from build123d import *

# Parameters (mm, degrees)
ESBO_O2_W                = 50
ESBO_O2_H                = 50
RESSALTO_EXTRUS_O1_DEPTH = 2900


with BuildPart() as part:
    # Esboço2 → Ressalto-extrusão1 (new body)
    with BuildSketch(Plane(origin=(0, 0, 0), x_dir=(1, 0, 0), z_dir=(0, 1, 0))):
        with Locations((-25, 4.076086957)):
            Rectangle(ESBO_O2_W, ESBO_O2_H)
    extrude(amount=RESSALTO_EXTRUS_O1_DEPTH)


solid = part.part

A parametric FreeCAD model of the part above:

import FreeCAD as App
import Part
import Sketcher
from FreeCAD import Vector

doc = App.newDocument("Part")
body = doc.addObject("PartDesign::Body", "Body")

sketch1 = body.newObject("Sketcher::SketchObject", "Sketch")
sketch1.AttachmentSupport = (doc.getObject("XZ_Plane"), [""])
sketch1.MapMode = "FlatFace"
sketch1.addGeometry([
    Part.LineSegment(Vector(-50, -29, 0), Vector(-50, 21, 0)),
    Part.LineSegment(Vector(-50, 21, 0), Vector(0, 21, 0)),
    Part.LineSegment(Vector(0, 21, 0), Vector(0, -29, 0)),
    Part.LineSegment(Vector(0, -29, 0), Vector(-50, -29, 0)),
], False)
sketch1.addConstraint([
    Sketcher.Constraint("Coincident", 0, 2, 1, 1),
    Sketcher.Constraint("Coincident", 1, 2, 2, 1),
    Sketcher.Constraint("Coincident", 2, 2, 3, 1),
    Sketcher.Constraint("Coincident", 3, 2, 0, 1),
    Sketcher.Constraint("Vertical", 0),
    Sketcher.Constraint("Horizontal", 1),
    Sketcher.Constraint("Vertical", 2),
    Sketcher.Constraint("Horizontal", 3),
    Sketcher.Constraint("PointOnObject", 1, 2, -2),
    Sketcher.Constraint("Equal", 3, 0),
    Sketcher.Constraint("DistanceX", 1, 1, 1, 2, 50.0),
    Sketcher.Constraint("DistanceY", -1, 1, 0, 2, 20.923913),
])
pad1 = body.newObject("PartDesign::Pad", "Pad")
pad1.Profile = sketch1
pad1.Length = 2900
pad1.Reversed = True

doc.recompute()
